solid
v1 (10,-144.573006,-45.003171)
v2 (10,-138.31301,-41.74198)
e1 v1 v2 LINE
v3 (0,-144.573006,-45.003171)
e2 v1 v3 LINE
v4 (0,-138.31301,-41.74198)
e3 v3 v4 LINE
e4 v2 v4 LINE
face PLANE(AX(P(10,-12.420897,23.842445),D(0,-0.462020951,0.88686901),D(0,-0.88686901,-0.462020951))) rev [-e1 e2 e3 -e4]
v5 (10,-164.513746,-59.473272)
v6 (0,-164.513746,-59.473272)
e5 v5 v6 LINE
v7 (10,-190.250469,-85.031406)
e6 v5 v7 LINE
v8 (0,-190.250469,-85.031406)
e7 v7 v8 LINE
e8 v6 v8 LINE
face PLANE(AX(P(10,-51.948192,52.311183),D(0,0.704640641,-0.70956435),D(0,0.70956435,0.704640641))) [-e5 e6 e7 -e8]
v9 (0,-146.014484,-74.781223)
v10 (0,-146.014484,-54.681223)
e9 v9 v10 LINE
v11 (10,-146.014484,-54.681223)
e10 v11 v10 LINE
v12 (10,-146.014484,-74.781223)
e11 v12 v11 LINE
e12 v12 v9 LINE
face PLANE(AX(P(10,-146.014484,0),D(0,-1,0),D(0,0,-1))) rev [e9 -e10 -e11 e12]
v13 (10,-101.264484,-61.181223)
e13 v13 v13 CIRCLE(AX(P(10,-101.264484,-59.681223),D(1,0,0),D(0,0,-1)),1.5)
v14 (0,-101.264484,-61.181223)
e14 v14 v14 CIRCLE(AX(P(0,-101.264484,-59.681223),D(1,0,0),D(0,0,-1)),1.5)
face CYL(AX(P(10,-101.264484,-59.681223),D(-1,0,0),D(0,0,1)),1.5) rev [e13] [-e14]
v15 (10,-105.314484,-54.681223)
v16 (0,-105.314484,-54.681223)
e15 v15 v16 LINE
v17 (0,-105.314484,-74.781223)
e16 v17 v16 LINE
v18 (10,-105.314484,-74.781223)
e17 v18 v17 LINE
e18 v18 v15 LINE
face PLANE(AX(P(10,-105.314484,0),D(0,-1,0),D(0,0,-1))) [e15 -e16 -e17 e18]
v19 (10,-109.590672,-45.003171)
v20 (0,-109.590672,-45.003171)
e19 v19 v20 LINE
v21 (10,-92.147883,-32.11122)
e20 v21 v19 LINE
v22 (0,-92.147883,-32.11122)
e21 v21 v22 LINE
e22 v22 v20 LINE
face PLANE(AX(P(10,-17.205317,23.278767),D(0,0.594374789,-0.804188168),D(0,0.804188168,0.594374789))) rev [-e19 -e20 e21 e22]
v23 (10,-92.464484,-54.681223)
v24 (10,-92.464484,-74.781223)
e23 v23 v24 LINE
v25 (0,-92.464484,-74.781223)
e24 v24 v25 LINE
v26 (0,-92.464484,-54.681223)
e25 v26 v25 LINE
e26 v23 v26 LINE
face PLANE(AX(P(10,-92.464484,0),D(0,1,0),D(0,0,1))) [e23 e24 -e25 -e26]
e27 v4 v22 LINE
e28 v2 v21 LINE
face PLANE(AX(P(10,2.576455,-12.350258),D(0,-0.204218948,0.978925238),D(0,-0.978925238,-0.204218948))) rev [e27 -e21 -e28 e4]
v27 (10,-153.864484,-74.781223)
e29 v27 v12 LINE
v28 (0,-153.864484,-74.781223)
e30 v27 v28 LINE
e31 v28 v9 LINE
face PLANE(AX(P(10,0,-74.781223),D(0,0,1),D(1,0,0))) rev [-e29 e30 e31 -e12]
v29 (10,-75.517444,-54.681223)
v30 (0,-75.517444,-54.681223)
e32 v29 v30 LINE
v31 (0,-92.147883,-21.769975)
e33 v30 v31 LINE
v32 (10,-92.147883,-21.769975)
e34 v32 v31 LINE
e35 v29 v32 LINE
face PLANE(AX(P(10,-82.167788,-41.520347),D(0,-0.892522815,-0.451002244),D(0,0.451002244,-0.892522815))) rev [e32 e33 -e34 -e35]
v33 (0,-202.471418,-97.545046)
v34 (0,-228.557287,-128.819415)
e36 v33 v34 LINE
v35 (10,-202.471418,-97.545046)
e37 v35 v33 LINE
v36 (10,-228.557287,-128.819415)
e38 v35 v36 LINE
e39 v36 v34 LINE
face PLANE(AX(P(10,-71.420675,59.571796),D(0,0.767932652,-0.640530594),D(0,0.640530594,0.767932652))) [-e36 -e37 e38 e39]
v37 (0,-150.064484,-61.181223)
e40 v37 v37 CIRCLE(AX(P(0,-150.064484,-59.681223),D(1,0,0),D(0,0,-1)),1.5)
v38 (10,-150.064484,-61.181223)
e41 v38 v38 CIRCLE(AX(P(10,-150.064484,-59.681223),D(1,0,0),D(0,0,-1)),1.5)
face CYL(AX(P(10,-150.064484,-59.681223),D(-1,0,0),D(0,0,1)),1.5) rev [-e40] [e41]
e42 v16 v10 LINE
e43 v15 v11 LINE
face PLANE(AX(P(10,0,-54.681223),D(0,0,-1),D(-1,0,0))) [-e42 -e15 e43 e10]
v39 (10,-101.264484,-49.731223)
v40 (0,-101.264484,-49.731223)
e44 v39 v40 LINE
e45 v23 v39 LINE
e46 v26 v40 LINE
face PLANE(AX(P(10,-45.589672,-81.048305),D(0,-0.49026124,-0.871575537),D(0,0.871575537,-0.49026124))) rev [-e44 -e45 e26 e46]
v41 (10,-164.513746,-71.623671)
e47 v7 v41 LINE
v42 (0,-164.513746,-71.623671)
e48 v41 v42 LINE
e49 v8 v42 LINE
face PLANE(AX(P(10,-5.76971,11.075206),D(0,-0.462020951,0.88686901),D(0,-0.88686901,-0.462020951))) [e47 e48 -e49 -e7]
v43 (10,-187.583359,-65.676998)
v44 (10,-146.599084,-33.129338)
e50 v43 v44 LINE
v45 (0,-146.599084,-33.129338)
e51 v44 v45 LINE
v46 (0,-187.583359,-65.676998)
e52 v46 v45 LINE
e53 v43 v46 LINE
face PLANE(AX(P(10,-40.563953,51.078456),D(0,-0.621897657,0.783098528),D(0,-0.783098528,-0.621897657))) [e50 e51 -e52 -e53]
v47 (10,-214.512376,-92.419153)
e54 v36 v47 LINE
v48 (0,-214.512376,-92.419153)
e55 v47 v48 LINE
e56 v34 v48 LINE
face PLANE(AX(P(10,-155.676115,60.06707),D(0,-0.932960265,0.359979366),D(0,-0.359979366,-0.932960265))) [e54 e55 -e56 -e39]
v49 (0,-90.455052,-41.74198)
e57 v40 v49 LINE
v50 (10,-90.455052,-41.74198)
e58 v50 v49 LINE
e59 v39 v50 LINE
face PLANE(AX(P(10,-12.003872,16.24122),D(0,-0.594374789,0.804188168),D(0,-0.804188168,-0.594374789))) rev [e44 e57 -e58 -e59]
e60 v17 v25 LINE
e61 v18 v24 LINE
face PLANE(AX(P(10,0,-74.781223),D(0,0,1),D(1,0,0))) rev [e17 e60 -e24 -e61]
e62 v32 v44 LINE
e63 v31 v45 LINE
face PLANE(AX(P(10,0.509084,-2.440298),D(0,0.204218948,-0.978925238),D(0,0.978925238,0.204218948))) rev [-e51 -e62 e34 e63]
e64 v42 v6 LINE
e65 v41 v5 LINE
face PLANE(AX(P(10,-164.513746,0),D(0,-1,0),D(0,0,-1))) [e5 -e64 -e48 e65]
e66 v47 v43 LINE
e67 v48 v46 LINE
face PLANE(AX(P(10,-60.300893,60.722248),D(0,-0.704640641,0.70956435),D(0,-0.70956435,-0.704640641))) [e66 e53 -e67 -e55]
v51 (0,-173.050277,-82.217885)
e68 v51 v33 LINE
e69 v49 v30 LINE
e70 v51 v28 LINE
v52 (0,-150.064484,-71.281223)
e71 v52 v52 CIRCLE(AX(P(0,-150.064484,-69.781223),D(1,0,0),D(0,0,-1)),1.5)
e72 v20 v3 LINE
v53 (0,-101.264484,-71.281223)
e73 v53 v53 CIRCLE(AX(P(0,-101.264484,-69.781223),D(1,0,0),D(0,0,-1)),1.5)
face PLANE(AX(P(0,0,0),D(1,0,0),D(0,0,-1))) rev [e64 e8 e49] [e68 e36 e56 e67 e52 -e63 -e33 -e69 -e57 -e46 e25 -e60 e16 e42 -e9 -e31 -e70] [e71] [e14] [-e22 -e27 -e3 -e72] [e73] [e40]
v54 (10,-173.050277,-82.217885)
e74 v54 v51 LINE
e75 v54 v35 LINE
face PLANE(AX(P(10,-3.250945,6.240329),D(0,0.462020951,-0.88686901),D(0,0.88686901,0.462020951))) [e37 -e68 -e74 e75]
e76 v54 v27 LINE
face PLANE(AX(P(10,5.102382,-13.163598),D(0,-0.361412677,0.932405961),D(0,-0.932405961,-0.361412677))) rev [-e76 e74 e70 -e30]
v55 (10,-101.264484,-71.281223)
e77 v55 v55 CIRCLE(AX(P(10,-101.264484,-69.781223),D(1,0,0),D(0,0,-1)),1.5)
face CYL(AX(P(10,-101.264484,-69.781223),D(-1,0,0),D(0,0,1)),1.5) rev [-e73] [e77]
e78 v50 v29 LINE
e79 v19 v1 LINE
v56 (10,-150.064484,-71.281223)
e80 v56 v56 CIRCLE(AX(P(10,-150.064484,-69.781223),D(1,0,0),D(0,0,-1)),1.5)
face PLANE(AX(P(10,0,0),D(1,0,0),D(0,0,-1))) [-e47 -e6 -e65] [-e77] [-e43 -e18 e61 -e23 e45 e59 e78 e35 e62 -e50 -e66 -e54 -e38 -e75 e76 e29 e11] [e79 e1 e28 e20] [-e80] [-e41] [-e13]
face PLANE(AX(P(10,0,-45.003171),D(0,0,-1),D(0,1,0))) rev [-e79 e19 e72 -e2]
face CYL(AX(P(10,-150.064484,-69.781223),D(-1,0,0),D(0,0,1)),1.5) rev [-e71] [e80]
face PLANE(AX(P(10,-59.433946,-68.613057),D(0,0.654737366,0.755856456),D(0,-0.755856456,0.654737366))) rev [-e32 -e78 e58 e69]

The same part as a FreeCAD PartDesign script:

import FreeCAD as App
import Part
import Sketcher
from FreeCAD import Vector


def add_polygon(sketch, points):
    """Adds a closed chain of lines whose ends are joined by coincident constraints."""
    first, n = sketch.GeometryCount, len(points)
    for a, b in zip(points, points[1:] + points[:1]):
        sketch.addGeometry(Part.LineSegment(App.Vector(*a, 0), App.Vector(*b, 0)), False)
    for i in range(n):
        sketch.addConstraint(Sketcher.Constraint("Coincident", first + i, 2, first + (i + 1) % n, 1))

doc = App.newDocument("Part")
params = doc.addObject("Spreadsheet::Sheet", "Params")
for row, (alias, value) in enumerate([
    ("sketch1_diameter", "3 mm"),
    ("sketch1_width", "40.7 mm"),
    ("sketch1_height", "20.1 mm"),
    ("sketch1_width2", "12.85 mm"),
    ("sketch1_width3", "7.85 mm"),
    ("pad1_length", "10 mm"),
], start=1):
    params.set(f"A{row}", alias)
    params.set(f"B{row}", "=" + value)
    params.setAlias(f"B{row}", alias)

body = doc.addObject("PartDesign::Body", "Body")

# Sketch on YZ plane
sketch1 = body.newObject("Sketcher::SketchObject", "Sketch")
sketch1.AttachmentSupport = (doc.getObject("YZ_Plane"), [""])
sketch1.MapMode = "FlatFace"
add_polygon(sketch1, [(-105.3, -54.7), (-105.3, -74.8), (-92.5, -74.8), (-92.5, -54.7), (-101.3, -49.7), (-90.5, -41.7), (-75.5, -54.7), (-92.1, -21.8), (-119.7, -27.5), (-146.6, -33.1), (-187.6, -65.7), (-214.5, -92.4), (-228.6, -128.8), (-202.5, -97.5), (-173.1, -82.2), (-153.9, -74.8), (-146, -74.8), (-146, -54.7)])  # lines 0-17
add_polygon(sketch1, [(-190.3, -85), (-164.5, -59.5), (-164.5, -71.6)])  # lines 18-20
sketch1.addGeometry(Part.Circle(Vector(-150.1, -69.8, 0), Vector(0, 0, 1), 1.5), False)  # 21
sketch1.addGeometry(Part.Circle(Vector(-150.1, -59.7, 0), Vector(0, 0, 1), 1.5), False)  # 22
sketch1.addGeometry(Part.Circle(Vector(-101.3, -69.8, 0), Vector(0, 0, 1), 1.5), False)  # 23
sketch1.addGeometry(Part.Circle(Vector(-101.3, -59.7, 0), Vector(0, 0, 1), 1.5), False)  # 24
add_polygon(sketch1, [(-144.6, -45), (-138.3, -41.7), (-92.1, -32.1), (-109.6, -45)])  # lines 25-28
sketch1.addConstraint(Sketcher.Constraint("Vertical", 0))
sketch1.addConstraint(Sketcher.Constraint("Horizontal", 1))
sketch1.addConstraint(Sketcher.Constraint("Vertical", 2))
sketch1.addConstraint(Sketcher.Constraint("Horizontal", 15))
sketch1.addConstraint(Sketcher.Constraint("Vertical", 16))
sketch1.addConstraint(Sketcher.Constraint("Horizontal", 17))
sketch1.addConstraint(Sketcher.Constraint("Vertical", 19))
sketch1.addConstraint(Sketcher.Constraint("Horizontal", 28))
sketch1.addConstraint(Sketcher.Constraint("Equal", 21, 22))
sketch1.addConstraint(Sketcher.Constraint("Equal", 22, 23))
sketch1.addConstraint(Sketcher.Constraint("Equal", 23, 24))
sketch1.addConstraint(Sketcher.Constraint("Parallel", 7, 8))
sketch1.addConstraint(Sketcher.Constraint("Parallel", 10, 18))
sketch1.addConstraint(Sketcher.Constraint("Parallel", 13, 20))
sketch1.addConstraint(Sketcher.Constraint("Parallel", 20, 25))
sketch1.addConstraint(Sketcher.Constraint("Parallel", 8, 26))
sketch1.addConstraint(Sketcher.Constraint("Parallel", 4, 27))
sketch1.addConstraint(Sketcher.Constraint("Horizontal", 21, 3, 23, 3))
sketch1.addConstraint(Sketcher.Constraint("Horizontal", 22, 3, 24, 3))
sketch1.addConstraint(Sketcher.Constraint("Horizontal", 2, 2, 5, 2))
sketch1.addConstraint(Sketcher.Constraint("Horizontal", 1, 2, 14, 2))
sketch1.addConstraint(Sketcher.Constraint("Horizontal", 5, 2, 16, 2))
sketch1.addConstraint(Sketcher.Constraint("Horizontal", 4, 2, 25, 2))
sketch1.addConstraint(Sketcher.Constraint("Vertical", 21, 3, 22, 3))
sketch1.addConstraint(Sketcher.Constraint("Vertical", 23, 3, 24, 3))
sketch1.addConstraint(Sketcher.Constraint("Vertical", 24, 3, 3, 2))
sketch1.addConstraint(Sketcher.Constraint("Vertical", 6, 2, 26, 2))
sketch1.addConstraint(Sketcher.Constraint("Diameter", 21, 3.0))
sketch1.addConstraint(Sketcher.Constraint("DistanceX", 17, 1, 17, 2, 40.7))
sketch1.addConstraint(Sketcher.Constraint("DistanceY", 0, 2, 0, 1, 20.1))
sketch1.addConstraint(Sketcher.Constraint("DistanceY", 0, 2, 23, 3, 5.0))
sketch1.addConstraint(Sketcher.Constraint("DistanceY", 24, 3, 2, 2, 5.0))
sketch1.addConstraint(Sketcher.Constraint("DistanceX", 1, 1, 1, 2, 12.85))
sketch1.addConstraint(Sketcher.Constraint("DistanceX", 15, 1, 15, 2, 7.85))
sketch1.addConstraint(Sketcher.Constraint("DistanceX", 21, 3, 23, 3, 48.8))
sketch1.addConstraint(Sketcher.Constraint("DistanceX", 23, 3, 1, 2, 8.8))
sketch1.addConstraint(Sketcher.Constraint("DistanceY", 24, 3, 3, 2, 9.95))
sketch1.addConstraint(Sketcher.Constraint("DistanceY", 19, 2, 19, 1, 12.150398))
sketch1.addConstraint(Sketcher.Constraint("DistanceY", 9, 2, -1, 1, 65.676998))
sketch1.addConstraint(Sketcher.Constraint("DistanceX", 3, 2, 6, 2, 9.116601))
sketch1.addConstraint(Sketcher.Constraint("DistanceX", 22, 3, 8, 2, 3.465401))
sketch1.addConstraint(Sketcher.Constraint("DistanceX", 10, 2, 13, 2, 41.462099))
sketch1.addConstraint(Sketcher.Constraint("DistanceY", 18, 2, 28, 2, 14.470101))
sketch1.addConstraint(Sketcher.Constraint("Distance", 7, 28.149549))
sketch1.addConstraint(Sketcher.Constraint("Distance", 9, 52.33604))
sketch1.addConstraint(Sketcher.Constraint("Distance", 10, 37.95148))
sketch1.addConstraint(Sketcher.Constraint("Distance", 14, 20.576651))
sketch1.addConstraint(Sketcher.Constraint("Distance", 18, 36.271161))
sketch1.addConstraint(Sketcher.Constraint("Distance", 26, 47.158991))
sketch1.addConstraint(Sketcher.Constraint("DistanceX", 28, 2, 28, 1, 34.982334))
sketch1.addConstraint(Sketcher.Constraint("DistanceX", 4, 2, -1, 1, 90.455052))
sketch1.addConstraint(Sketcher.Constraint("DistanceY", 4, 2, -1, 1, 41.74198))
sketch1.addConstraint(Sketcher.Constraint("DistanceX", 9, 2, -1, 1, 187.583359))
sketch1.addConstraint(Sketcher.Constraint("DistanceY", 19, 2, -1, 1, 71.623671))
sketch1.addConstraint(Sketcher.Constraint("DistanceX", 20, 2, -1, 1, 190.250469))
sketch1.addConstraint(Sketcher.Constraint("DistanceX", 25, 2, -1, 1, 138.31301))
sketch1.addConstraint(Sketcher.Constraint("DistanceY", 26, 2, -1, 1, 32.11122))
sketch1.addConstraint(Sketcher.Constraint("DistanceX", 2, 2, 5, 2, 16.947041))
sketch1.addConstraint(Sketcher.Constraint("DistanceX", 10, 2, 21, 3, 64.447892))
sketch1.addConstraint(Sketcher.Constraint("DistanceX", 11, 2, 10, 2, 14.04491))
sketch1.addConstraint(Sketcher.Constraint("DistanceX", 10, 2, 12, 2, 12.040959))
sketch1.addConstraint(Sketcher.Constraint("DistanceY", 11, 2, 12, 2, 31.27437))
sketch1.setExpression("Constraints[52]", "Params.sketch1_diameter")
sketch1.setExpression("Constraints[53]", "Params.sketch1_width")
sketch1.setExpression("Constraints[54]", "Params.sketch1_height")
sketch1.setExpression("Constraints[57]", "Params.sketch1_width2")
sketch1.setExpression("Constraints[58]", "Params.sketch1_width3")
pad1 = body.newObject("PartDesign::Pad", "Pad")
pad1.Profile = sketch1
pad1.setExpression("Length", "Params.pad1_length")

doc.recompute()
